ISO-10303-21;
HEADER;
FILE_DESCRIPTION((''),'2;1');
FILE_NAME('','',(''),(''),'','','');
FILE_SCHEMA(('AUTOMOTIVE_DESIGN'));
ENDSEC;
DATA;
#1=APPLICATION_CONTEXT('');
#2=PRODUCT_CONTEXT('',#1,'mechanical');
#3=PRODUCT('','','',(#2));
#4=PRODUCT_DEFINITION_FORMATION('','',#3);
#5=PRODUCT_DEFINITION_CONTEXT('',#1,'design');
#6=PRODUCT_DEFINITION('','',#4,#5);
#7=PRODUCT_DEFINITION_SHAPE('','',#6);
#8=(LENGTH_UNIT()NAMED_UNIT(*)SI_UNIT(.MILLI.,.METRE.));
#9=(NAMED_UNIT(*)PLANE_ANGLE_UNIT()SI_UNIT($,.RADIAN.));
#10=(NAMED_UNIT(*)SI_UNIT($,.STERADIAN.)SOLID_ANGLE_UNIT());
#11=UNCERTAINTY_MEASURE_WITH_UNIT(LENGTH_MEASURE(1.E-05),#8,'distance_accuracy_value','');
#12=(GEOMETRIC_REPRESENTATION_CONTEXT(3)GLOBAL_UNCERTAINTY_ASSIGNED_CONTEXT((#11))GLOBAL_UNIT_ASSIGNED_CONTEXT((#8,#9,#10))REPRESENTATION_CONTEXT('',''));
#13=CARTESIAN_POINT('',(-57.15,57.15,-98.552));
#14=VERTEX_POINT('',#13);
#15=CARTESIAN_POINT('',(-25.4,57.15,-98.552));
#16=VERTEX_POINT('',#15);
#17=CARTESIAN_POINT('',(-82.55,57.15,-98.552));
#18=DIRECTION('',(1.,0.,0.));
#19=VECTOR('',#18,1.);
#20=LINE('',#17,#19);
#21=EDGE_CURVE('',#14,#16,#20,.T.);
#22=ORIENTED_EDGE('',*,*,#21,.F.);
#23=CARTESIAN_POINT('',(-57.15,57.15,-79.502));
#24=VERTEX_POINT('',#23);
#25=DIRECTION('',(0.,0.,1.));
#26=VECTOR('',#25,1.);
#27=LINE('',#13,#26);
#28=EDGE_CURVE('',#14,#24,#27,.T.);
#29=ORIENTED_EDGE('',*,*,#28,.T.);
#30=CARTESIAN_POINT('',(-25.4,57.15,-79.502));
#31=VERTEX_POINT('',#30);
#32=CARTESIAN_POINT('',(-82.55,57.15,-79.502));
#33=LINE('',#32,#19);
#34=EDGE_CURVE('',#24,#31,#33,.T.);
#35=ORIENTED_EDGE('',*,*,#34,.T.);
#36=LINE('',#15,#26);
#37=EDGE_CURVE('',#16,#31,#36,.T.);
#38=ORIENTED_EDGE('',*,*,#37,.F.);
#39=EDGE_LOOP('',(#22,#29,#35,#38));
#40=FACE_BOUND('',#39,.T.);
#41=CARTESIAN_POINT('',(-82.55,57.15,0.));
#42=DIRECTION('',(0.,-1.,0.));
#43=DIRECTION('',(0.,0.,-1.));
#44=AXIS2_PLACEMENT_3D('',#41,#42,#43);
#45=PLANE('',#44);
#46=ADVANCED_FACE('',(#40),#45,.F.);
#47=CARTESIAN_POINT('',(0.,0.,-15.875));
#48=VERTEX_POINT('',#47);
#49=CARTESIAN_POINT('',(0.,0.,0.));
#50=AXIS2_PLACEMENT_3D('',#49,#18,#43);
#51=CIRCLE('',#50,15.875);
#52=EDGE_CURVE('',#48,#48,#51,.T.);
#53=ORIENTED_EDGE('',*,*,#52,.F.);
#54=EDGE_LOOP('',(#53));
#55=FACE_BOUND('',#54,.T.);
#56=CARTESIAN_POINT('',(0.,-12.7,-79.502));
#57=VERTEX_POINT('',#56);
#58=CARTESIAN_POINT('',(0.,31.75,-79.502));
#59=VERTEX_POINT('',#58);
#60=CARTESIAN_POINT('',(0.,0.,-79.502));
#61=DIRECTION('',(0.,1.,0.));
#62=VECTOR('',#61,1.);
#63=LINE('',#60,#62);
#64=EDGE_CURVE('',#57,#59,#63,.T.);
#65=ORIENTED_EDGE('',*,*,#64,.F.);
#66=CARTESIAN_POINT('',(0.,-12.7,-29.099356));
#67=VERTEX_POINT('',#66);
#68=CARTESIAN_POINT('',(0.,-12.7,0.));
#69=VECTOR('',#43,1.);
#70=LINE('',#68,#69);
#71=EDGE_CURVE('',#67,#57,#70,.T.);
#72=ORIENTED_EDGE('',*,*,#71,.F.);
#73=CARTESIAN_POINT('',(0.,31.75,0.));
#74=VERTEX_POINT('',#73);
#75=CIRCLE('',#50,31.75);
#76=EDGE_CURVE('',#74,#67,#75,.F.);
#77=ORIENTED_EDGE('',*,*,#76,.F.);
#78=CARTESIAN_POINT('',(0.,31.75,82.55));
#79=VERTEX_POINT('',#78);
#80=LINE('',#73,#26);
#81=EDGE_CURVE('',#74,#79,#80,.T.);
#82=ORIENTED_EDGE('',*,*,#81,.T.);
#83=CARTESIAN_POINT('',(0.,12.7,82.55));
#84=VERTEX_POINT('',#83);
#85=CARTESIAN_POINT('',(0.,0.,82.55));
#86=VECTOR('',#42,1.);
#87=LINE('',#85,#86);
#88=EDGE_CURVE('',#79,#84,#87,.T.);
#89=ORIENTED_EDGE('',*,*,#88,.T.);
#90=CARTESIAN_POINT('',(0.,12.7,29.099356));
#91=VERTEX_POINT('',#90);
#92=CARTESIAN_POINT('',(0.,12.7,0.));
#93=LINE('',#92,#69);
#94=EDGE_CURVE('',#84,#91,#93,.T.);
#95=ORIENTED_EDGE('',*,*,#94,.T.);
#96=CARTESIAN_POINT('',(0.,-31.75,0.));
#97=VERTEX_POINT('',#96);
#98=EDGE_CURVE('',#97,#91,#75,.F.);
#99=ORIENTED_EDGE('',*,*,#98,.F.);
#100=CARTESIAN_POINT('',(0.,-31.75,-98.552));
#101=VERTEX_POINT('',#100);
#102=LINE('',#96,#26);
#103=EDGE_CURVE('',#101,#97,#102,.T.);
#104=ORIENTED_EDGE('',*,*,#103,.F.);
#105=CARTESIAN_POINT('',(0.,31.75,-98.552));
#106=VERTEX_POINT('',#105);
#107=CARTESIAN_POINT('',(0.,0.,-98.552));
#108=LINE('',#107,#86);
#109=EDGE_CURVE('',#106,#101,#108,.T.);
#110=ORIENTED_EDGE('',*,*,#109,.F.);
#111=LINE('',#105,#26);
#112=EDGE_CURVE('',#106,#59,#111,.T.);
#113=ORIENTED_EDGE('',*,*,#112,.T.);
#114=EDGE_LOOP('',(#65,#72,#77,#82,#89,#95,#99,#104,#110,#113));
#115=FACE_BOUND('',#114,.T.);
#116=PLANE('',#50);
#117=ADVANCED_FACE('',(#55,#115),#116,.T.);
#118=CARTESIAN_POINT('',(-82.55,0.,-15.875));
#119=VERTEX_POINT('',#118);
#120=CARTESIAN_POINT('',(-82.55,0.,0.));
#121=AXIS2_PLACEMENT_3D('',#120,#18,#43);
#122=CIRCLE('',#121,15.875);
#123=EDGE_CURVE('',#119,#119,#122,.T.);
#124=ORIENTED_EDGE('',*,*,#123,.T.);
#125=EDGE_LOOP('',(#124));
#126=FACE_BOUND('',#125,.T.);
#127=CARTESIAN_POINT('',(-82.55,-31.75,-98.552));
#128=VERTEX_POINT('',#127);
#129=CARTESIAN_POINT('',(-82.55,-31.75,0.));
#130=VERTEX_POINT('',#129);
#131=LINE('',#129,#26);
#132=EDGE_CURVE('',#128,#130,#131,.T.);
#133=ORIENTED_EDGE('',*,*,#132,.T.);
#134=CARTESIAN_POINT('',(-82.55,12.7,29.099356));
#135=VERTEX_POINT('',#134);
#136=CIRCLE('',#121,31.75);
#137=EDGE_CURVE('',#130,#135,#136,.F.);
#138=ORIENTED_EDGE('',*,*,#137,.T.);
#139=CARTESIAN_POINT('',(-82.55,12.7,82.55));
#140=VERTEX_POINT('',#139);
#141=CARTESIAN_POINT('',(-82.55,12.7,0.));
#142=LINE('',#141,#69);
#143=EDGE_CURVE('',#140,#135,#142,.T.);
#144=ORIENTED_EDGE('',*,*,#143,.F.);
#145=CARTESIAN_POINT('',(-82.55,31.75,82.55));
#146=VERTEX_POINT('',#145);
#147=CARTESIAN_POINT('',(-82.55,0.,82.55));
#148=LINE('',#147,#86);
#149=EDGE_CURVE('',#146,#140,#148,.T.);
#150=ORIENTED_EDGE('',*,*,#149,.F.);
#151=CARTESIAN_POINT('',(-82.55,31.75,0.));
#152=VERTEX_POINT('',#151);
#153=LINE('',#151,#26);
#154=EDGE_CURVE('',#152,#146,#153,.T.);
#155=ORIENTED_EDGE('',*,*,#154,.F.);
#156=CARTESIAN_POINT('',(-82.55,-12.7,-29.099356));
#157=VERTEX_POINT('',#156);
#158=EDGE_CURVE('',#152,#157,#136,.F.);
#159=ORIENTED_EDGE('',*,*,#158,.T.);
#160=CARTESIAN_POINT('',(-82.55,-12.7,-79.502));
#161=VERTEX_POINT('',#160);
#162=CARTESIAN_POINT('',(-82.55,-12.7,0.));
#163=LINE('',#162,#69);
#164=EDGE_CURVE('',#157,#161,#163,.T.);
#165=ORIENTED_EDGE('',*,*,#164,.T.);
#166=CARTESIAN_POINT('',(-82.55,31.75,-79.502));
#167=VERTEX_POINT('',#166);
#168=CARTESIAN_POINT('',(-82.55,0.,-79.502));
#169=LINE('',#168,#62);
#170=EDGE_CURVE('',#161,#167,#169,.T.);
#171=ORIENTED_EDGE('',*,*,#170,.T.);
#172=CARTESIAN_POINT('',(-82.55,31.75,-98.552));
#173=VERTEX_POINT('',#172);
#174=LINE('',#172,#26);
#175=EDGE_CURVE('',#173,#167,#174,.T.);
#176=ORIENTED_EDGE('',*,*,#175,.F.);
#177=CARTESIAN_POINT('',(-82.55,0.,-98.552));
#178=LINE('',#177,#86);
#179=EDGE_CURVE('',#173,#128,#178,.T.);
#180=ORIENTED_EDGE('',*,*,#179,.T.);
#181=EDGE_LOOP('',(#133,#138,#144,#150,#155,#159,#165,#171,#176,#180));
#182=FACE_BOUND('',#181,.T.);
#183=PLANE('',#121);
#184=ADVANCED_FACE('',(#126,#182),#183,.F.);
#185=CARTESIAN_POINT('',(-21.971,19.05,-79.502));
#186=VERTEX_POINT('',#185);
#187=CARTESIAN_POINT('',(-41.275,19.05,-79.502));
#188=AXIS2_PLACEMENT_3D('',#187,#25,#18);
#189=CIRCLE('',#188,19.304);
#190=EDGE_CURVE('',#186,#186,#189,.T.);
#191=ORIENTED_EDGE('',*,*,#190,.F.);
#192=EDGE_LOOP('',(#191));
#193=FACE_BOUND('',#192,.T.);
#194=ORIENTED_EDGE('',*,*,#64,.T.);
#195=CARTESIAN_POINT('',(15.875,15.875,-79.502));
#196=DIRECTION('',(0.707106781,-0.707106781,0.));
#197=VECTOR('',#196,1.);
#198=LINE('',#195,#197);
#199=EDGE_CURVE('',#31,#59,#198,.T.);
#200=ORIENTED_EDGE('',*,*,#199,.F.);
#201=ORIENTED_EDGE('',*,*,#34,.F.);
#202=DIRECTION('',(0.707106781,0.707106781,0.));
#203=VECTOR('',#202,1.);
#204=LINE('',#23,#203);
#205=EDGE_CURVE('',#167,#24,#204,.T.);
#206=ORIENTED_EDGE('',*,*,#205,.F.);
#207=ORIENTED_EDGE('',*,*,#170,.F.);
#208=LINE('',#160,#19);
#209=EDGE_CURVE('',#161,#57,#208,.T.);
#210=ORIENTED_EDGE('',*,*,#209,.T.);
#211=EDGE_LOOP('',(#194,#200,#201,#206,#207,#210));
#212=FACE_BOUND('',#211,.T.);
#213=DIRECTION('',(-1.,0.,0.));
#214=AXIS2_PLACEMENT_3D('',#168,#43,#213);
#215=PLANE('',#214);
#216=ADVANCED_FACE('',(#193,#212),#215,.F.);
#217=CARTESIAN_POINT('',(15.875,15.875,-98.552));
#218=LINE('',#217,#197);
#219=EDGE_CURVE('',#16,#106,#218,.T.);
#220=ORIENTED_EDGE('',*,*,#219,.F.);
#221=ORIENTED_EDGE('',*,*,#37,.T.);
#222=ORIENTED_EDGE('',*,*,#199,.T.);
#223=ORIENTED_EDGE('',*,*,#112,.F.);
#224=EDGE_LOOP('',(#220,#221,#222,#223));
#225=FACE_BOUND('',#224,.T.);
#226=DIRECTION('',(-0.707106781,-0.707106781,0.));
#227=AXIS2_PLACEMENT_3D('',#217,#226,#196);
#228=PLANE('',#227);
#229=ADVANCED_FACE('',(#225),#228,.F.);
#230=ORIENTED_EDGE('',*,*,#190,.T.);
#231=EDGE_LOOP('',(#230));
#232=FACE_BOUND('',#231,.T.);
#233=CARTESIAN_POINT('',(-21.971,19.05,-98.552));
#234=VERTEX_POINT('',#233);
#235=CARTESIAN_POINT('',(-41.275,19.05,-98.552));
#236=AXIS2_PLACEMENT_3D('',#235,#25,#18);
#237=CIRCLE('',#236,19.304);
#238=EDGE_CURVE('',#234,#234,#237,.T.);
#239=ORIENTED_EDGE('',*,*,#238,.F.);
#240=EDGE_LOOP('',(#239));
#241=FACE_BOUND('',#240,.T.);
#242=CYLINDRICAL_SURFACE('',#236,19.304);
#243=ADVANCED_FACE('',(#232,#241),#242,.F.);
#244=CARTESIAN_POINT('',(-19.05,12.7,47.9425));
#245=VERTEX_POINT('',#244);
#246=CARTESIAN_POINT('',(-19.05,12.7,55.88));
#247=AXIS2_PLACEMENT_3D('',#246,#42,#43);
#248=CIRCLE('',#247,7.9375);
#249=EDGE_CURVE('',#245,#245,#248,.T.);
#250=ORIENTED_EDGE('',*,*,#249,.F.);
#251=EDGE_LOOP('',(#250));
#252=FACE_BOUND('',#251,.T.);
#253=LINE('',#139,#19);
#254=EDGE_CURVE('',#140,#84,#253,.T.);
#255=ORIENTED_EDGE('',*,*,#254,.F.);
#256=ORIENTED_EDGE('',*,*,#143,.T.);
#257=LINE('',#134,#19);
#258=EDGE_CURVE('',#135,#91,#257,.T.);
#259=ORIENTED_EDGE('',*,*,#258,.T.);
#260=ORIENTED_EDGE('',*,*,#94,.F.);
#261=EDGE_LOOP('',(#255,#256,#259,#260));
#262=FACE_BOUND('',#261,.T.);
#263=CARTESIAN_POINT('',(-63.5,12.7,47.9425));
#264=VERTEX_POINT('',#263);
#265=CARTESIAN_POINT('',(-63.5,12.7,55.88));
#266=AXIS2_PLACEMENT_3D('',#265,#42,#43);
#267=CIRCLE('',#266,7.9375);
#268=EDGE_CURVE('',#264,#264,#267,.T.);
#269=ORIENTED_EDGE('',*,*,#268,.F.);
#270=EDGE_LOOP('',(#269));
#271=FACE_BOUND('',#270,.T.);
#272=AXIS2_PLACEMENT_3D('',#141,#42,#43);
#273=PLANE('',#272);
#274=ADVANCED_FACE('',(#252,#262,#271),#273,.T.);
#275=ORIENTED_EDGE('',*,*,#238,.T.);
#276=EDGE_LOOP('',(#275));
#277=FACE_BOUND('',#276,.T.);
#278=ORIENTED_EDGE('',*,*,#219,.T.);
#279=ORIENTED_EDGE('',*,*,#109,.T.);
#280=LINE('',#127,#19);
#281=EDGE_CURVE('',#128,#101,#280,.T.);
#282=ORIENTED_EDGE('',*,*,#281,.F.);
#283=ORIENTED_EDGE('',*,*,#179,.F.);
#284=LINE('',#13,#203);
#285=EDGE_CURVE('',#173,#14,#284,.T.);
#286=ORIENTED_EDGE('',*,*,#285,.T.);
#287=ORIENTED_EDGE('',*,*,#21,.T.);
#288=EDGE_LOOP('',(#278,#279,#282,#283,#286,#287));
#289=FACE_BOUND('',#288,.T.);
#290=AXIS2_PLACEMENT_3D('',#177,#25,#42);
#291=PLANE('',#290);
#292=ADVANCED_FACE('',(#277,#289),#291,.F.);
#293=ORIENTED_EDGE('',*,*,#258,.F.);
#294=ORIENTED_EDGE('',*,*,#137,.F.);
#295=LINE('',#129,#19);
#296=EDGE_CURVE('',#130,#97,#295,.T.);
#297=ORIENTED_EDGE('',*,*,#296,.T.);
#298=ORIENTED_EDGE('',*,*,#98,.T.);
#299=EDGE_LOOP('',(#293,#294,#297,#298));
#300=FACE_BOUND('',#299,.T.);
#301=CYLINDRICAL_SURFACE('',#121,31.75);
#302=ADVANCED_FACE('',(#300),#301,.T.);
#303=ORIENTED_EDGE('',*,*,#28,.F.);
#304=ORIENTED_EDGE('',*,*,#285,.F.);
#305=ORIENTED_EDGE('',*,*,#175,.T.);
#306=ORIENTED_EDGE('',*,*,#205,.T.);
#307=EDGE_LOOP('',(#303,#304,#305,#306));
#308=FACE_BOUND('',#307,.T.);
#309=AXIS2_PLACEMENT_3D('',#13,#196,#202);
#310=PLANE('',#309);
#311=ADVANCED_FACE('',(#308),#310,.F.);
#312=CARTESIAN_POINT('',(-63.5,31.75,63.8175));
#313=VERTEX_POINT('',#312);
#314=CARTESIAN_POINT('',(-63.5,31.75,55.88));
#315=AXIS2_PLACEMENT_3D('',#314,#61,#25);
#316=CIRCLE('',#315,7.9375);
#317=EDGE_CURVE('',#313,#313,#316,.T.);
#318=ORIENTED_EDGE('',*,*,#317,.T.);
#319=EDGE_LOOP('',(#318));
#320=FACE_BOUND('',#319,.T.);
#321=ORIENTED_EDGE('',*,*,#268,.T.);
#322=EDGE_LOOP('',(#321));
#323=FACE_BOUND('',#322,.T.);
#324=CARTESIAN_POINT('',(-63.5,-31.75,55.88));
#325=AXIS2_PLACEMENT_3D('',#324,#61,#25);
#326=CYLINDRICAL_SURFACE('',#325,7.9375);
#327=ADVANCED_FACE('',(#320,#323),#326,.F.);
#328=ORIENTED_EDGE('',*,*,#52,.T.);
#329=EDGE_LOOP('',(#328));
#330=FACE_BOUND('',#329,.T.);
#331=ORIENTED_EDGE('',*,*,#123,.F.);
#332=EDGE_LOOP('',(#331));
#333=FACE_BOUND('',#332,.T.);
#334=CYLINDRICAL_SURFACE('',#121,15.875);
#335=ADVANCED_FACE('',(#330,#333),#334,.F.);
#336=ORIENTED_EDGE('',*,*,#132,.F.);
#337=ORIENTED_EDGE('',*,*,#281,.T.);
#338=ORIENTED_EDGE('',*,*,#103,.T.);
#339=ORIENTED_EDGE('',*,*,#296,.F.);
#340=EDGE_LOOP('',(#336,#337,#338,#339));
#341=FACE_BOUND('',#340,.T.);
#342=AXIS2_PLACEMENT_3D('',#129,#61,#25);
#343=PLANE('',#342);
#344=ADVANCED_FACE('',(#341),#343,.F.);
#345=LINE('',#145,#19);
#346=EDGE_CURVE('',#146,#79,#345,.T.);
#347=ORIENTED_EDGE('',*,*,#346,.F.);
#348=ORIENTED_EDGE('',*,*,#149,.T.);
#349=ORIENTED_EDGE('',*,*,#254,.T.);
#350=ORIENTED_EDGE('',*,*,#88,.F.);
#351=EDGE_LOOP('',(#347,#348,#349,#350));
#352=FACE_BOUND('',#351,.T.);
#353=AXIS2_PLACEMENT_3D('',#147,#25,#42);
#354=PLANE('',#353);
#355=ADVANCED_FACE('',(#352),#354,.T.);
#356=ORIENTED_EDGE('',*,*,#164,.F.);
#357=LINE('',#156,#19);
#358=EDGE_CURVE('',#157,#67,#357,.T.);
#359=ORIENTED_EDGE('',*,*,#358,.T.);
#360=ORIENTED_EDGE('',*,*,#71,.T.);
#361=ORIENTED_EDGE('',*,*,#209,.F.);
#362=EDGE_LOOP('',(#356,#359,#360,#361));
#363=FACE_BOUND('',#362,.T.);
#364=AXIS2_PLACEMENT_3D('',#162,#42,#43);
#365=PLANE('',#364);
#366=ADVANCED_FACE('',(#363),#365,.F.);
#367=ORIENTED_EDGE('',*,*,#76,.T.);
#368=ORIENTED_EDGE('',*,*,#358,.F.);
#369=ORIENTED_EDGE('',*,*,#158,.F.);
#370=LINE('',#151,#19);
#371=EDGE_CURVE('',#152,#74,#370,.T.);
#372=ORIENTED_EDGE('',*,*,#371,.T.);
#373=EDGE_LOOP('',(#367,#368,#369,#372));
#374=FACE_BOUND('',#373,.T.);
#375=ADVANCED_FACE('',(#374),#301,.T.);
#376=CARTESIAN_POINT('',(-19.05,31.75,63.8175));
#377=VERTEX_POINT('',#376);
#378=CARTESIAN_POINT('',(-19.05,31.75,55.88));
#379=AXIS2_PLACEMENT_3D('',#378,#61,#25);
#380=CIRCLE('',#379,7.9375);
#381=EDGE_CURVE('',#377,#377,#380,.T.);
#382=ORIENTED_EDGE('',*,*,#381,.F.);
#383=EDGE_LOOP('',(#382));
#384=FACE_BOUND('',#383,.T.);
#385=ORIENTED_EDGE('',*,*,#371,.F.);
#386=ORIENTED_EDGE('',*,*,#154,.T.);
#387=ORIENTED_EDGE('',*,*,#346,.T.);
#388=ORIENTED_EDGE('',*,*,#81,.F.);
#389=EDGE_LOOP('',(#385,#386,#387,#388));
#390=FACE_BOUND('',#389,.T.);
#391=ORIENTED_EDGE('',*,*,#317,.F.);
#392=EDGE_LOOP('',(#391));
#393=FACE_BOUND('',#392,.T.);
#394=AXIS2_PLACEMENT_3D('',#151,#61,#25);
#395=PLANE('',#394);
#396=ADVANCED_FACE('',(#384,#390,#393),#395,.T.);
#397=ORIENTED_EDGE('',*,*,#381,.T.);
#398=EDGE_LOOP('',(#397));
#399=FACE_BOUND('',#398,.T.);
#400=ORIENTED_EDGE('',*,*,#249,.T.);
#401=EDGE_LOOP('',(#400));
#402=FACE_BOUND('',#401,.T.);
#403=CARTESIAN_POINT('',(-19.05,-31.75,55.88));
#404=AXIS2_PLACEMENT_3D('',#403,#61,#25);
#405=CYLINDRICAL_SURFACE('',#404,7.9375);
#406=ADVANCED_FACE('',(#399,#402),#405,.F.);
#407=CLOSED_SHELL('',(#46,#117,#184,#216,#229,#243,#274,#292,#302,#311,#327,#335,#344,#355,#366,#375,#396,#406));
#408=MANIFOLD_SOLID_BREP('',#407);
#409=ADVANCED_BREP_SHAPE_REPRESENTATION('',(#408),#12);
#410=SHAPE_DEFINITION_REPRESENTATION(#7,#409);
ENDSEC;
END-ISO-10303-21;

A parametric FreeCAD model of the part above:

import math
import FreeCAD as App
import Part
import Sketcher
from FreeCAD import Vector
Q = App.Units.Quantity

doc = App.newDocument("Part")
body = doc.addObject("PartDesign::Body", "Body")

sketch1 = doc.addObject("Sketcher::SketchObject", "Sketch")
body.addObject(sketch1)
sketch1.AttachmentSupport = (doc.YZ_Plane, [""])
sketch1.MapMode = "FlatFace"
sketch1.addGeometry(Part.ArcOfCircle(Part.Circle(Vector(0, 0, 0), Vector(0, 0, 1), 32), math.radians(66), math.radians(180)), False)
sketch1.addGeometry(Part.LineSegment(Vector(-32, 0, 0), Vector(-32, -99, 0)), False)
sketch1.addGeometry(Part.LineSegment(Vector(-32, -99, 0), Vector(57, -99, 0)), False)
sketch1.addGeometry(Part.LineSegment(Vector(57, -99, 0), Vector(57, -80, 0)), False)
sketch1.addGeometry(Part.LineSegment(Vector(57, -80, 0), Vector(-13, -80, 0)), False)
sketch1.addGeometry(Part.LineSegment(Vector(-13, -80, 0), Vector(-13, -29, 0)), False)
sketch1.addGeometry(Part.ArcOfCircle(Part.Circle(Vector(0, 0, 0), Vector(0, 0, 1), 32), math.radians(-114), math.radians(0)), False)
sketch1.addGeometry(Part.LineSegment(Vector(32, 0, 0), Vector(32, 83, 0)), False)
sketch1.addGeometry(Part.LineSegment(Vector(32, 83, 0), Vector(13, 83, 0)), False)
sketch1.addGeometry(Part.LineSegment(Vector(13, 83, 0), Vector(13, 29, 0)), False)
sketch1.addGeometry(Part.Circle(Vector(0, 0, 0), Vector(0, 0, 1), 16), False)
sketch1.addConstraint(Sketcher.Constraint("Tangent", 0, 2, 1, 1))
sketch1.addConstraint(Sketcher.Constraint("Coincident", 1, 2, 2, 1))
sketch1.addConstraint(Sketcher.Constraint("Coincident", 2, 2, 3, 1))
sketch1.addConstraint(Sketcher.Constraint("Coincident", 3, 2, 4, 1))
sketch1.addConstraint(Sketcher.Constraint("Coincident", 4, 2, 5, 1))
sketch1.addConstraint(Sketcher.Constraint("Coincident", 5, 2, 6, 1))
sketch1.addConstraint(Sketcher.Constraint("Tangent", 6, 2, 7, 1))
sketch1.addConstraint(Sketcher.Constraint("Coincident", 7, 2, 8, 1))
sketch1.addConstraint(Sketcher.Constraint("Coincident", 8, 2, 9, 1))
sketch1.addConstraint(Sketcher.Constraint("Coincident", 9, 2, 0, 1))
sketch1.addConstraint(Sketcher.Constraint("Vertical", 1))
sketch1.addConstraint(Sketcher.Constraint("Horizontal", 2))
sketch1.addConstraint(Sketcher.Constraint("Vertical", 3))
sketch1.addConstraint(Sketcher.Constraint("Horizontal", 4))
sketch1.addConstraint(Sketcher.Constraint("Vertical", 5))
sketch1.addConstraint(Sketcher.Constraint("Vertical", 7))
sketch1.addConstraint(Sketcher.Constraint("Horizontal", 8))
sketch1.addConstraint(Sketcher.Constraint("Vertical", 9))
sketch1.addConstraint(Sketcher.Constraint("Coincident", 0, 3, -1, 1))
sketch1.addConstraint(Sketcher.Constraint("Coincident", 6, 3, -1, 1))
sketch1.addConstraint(Sketcher.Constraint("Coincident", 10, 3, -1, 1))
sketch1.addConstraint(Sketcher.Constraint("Equal", 0, 6))
sketch1.addConstraint(Sketcher.Constraint("Equal", 8, 3))
sketch1.addConstraint(Sketcher.Constraint("Diameter", 10, Q("1.25 in")))
sketch1.addConstraint(Sketcher.Constraint("Radius", 0, Q("1.25 in")))
sketch1.addConstraint(Sketcher.Constraint("DistanceX", 2, 1, 2, 2, Q("3.5 in")))
sketch1.addConstraint(Sketcher.Constraint("DistanceX", 4, 2, 4, 1, Q("2.75 in")))
sketch1.addConstraint(Sketcher.Constraint("DistanceX", 8, 2, 8, 1, Q("0.75 in")))
sketch1.addConstraint(Sketcher.Constraint("DistanceY", 1, 2, 1, 1, Q("3.88 in")))
sketch1.addConstraint(Sketcher.Constraint("DistanceY", 7, 1, 7, 2, Q("3.25 in")))
pad1 = doc.addObject("PartDesign::Pad", "Pad")
body.addObject(pad1)
pad1.Profile = sketch1
pad1.Length = Q("3.25 in")
pad1.Reversed = True

sketch2 = doc.addObject("Sketcher::SketchObject", "Sketch001")
body.addObject(sketch2)
sketch2.AttachmentSupport = (doc.XZ_Plane, [""])
sketch2.MapMode = "FlatFace"
sketch2.AttachmentOffset = App.Placement(Vector(0, 0, -1.25 * 25.4), App.Rotation())
sketch2.addGeometry(Part.Circle(Vector(-64, 56, 0), Vector(0, 0, 1), 8), False)
sketch2.addGeometry(Part.Circle(Vector(-19, 56, 0), Vector(0, 0, 1), 8), False)
sketch2.addConstraint(Sketcher.Constraint("Equal", 0, 1))
sketch2.addConstraint(Sketcher.Constraint("Horizontal", 0, 3, 1, 3))
sketch2.addConstraint(Sketcher.Constraint("Diameter", 0, Q("0.625 in")))
sketch2.addConstraint(Sketcher.Constraint("DistanceX", 0, 3, -1, 1, Q("2.5 in")))
sketch2.addConstraint(Sketcher.Constraint("DistanceY", -1, 1, 0, 3, Q("2.2 in")))
sketch2.addConstraint(Sketcher.Constraint("DistanceX", 1, 3, -1, 1, Q("0.75 in")))
pocket1 = doc.addObject("PartDesign::Pocket", "Pocket")
body.addObject(pocket1)
pocket1.Profile = sketch2
pocket1.Type = "ThroughAll"
pocket1.Reversed = True

sketch3 = doc.addObject("Sketcher::SketchObject", "Sketch002")
body.addObject(sketch3)
sketch3.AttachmentSupport = (doc.XY_Plane, [""])
sketch3.MapMode = "FlatFace"
sketch3.AttachmentOffset = App.Placement(Vector(0, 0, -3.13 * 25.4), App.Rotation())
sketch3.addGeometry(Part.LineSegment(Vector(-83, 32, 0), Vector(-57, 57, 0)), False)
sketch3.addGeometry(Part.LineSegment(Vector(-57, 57, 0), Vector(-83, 57, 0)), False)
sketch3.addGeometry(Part.LineSegment(Vector(-83, 57, 0), Vector(-83, 32, 0)), False)
sketch3.addGeometry(Part.LineSegment(Vector(-25, 57, 0), Vector(0, 32, 0)), False)
sketch3.addGeometry(Part.LineSegment(Vector(0, 32, 0), Vector(0, 57, 0)), False)
sketch3.addGeometry(Part.LineSegment(Vector(0, 57, 0), Vector(-25, 57, 0)), False)
sketch3.addGeometry(Part.Circle(Vector(-41, 19, 0), Vector(0, 0, 1), 19), False)
sketch3.addConstraint(Sketcher.Constraint("Coincident", 0, 2, 1, 1))
sketch3.addConstraint(Sketcher.Constraint("Coincident", 1, 2, 2, 1))
sketch3.addConstraint(Sketcher.Constraint("Coincident", 2, 2, 0, 1))
sketch3.addConstraint(Sketcher.Constraint("Coincident", 3, 2, 4, 1))
sketch3.addConstraint(Sketcher.Constraint("Coincident", 4, 2, 5, 1))
sketch3.addConstraint(Sketcher.Constraint("Coincident", 5, 2, 3, 1))
sketch3.addConstraint(Sketcher.Constraint("Horizontal", 1))
sketch3.addConstraint(Sketcher.Constraint("Vertical", 2))
sketch3.addConstraint(Sketcher.Constraint("Vertical", 4))
sketch3.addConstraint(Sketcher.Constraint("Horizontal", 5))
sketch3.addConstraint(Sketcher.Constraint("PointOnObject", 3, 2, -2))
sketch3.addConstraint(Sketcher.Constraint("Perpendicular", 0, 3))
sketch3.addConstraint(Sketcher.Constraint("Horizontal", 2, 2, 3, 2))
sketch3.addConstraint(Sketcher.Constraint("Horizontal", 1, 2, 4, 2))
sketch3.addConstraint(Sketcher.Constraint("Equal", 1, 5))
sketch3.addConstraint(Sketcher.Constraint("Diameter", 6, Q("1.52 in")))
sketch3.addConstraint(Sketcher.Constraint("DistanceX", 1, 2, 1, 1, Q("1 in")))
sketch3.addConstraint(Sketcher.Constraint("DistanceY", 6, 3, 0, 2, Q("1.5 in")))
sketch3.addConstraint(Sketcher.Constraint("DistanceY", -1, 1, 6, 3, Q("0.75 in")))
sketch3.addConstraint(Sketcher.Constraint("DistanceX", 0, 2, -1, 1, Q("2.25 in")))
sketch3.addConstraint(Sketcher.Constraint("DistanceX", 6, 3, -1, 1, Q("1.625 in")))
pocket2 = doc.addObject("PartDesign::Pocket", "Pocket001")
body.addObject(pocket2)
pocket2.Profile = sketch3
pocket2.Type = "ThroughAll"

doc.recompute()
